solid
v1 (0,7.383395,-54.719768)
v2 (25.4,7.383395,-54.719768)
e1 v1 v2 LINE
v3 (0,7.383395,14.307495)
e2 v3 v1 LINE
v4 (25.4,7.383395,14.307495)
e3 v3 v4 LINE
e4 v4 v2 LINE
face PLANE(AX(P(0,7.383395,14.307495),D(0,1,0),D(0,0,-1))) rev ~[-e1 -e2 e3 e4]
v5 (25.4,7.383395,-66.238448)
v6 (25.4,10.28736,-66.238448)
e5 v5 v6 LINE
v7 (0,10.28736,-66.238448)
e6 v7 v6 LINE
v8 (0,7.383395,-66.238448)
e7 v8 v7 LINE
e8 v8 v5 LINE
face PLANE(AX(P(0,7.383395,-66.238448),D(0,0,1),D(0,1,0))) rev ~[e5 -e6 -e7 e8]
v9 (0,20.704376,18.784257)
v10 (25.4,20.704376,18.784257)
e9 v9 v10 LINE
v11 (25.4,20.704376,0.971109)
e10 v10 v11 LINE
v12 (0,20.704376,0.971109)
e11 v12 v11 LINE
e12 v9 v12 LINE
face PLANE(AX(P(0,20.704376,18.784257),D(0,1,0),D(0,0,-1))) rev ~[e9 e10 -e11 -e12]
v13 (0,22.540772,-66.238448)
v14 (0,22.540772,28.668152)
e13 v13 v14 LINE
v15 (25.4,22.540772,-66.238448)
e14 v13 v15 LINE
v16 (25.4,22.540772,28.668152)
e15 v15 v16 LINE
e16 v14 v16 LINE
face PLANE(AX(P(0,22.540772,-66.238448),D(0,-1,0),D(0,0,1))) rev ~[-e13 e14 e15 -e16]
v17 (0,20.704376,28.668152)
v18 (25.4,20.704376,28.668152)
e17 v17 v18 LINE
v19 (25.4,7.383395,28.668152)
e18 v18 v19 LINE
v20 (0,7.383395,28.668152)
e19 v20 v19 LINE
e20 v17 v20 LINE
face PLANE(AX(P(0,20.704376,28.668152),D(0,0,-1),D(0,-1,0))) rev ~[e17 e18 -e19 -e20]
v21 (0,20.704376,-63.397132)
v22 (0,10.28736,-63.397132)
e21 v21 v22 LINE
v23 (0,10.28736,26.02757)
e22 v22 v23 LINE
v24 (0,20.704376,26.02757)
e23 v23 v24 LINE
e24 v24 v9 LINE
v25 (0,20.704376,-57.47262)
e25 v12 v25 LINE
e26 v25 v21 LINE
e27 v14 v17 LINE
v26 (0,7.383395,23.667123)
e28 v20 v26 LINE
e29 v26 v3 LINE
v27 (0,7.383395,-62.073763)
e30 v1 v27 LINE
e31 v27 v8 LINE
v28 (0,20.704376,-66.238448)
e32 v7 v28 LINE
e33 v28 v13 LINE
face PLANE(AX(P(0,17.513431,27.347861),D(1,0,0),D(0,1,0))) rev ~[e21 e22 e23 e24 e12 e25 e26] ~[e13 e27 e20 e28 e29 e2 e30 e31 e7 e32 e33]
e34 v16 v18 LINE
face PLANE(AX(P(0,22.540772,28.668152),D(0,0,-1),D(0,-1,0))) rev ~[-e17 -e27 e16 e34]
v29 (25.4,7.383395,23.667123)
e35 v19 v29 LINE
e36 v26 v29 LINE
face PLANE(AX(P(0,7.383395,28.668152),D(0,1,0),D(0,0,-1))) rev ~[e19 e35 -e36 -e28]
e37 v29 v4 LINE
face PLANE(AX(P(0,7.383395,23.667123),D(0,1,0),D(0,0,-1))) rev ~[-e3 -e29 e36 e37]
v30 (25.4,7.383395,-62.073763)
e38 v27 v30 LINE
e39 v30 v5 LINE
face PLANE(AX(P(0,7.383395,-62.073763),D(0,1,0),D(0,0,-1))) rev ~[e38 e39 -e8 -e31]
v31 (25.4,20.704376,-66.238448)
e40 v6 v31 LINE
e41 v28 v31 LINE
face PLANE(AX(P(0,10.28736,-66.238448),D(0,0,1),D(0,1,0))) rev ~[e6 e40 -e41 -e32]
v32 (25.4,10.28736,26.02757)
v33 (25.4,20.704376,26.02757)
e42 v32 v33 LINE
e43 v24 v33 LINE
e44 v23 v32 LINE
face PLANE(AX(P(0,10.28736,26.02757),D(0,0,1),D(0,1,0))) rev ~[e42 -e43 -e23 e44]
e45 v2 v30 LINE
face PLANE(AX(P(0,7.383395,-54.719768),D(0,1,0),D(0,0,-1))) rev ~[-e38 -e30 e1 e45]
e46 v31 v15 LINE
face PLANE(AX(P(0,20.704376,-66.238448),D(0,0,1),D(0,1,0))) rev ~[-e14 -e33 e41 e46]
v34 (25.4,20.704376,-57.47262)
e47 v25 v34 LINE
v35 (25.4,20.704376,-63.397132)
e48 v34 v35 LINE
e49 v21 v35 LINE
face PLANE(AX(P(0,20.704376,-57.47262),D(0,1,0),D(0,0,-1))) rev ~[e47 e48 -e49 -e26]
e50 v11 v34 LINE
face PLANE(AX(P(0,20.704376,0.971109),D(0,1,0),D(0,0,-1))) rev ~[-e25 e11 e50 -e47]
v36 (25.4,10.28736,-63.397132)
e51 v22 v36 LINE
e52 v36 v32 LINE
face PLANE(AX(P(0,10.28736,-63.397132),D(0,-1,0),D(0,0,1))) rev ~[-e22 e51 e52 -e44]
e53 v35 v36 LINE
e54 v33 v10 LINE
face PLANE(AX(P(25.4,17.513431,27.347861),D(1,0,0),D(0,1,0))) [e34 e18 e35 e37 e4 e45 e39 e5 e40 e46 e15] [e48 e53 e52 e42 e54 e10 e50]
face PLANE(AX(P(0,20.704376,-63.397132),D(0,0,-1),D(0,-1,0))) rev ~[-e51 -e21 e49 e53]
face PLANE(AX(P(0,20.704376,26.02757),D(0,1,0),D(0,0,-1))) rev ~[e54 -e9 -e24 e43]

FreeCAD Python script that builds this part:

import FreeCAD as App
import Part
import Sketcher

V = App.Vector
Q = App.Units.Quantity


def add_polygon(sketch, points):
    """Adds a closed chain of lines whose ends are joined by coincident constraints."""
    first, n = sketch.GeometryCount, len(points)
    for a, b in zip(points, points[1:] + points[:1]):
        sketch.addGeometry(Part.LineSegment(App.Vector(*a, 0), App.Vector(*b, 0)), False)
    for i in range(n):
        sketch.addConstraint(Sketcher.Constraint("Coincident", first + i, 2, first + (i + 1) % n, 1))

doc = App.newDocument("Part")
params = doc.addObject("Spreadsheet::Sheet", "Params")
for row, (alias, value) in enumerate([
    ("pad1_length", "1 in"),
], start=1):
    params.set(f"A{row}", alias)
    params.set(f"B{row}", "=" + value)
    params.setAlias(f"B{row}", alias)

body = doc.addObject("PartDesign::Body", "Body")

# Sketch on YZ plane
sketch1 = doc.addObject("Sketcher::SketchObject", "Sketch")
body.addObject(sketch1)
sketch1.AttachmentSupport = (doc.YZ_Plane, [""])
sketch1.MapMode = "FlatFace"
add_polygon(sketch1, [(20.7, 28.7), (7.4, 28.7), (7.4, 23.7), (7.4, 14.3), (7.4, -54.7), (7.4, -62.1), (7.4, -66.2), (10.3, -66.2), (20.7, -66.2), (22.5, -66.2), (22.5, 28.7)])  # lines 0-10
add_polygon(sketch1, [(10.3, 26), (20.7, 26), (20.7, 18.8), (20.7, 1), (20.7, -57.5), (20.7, -63.4), (10.3, -63.4)])  # lines 11-17
sketch1.addConstraint([
    Sketcher.Constraint("Horizontal", 0),
    Sketcher.Constraint("Vertical", 1),
    Sketcher.Constraint("Vertical", 2),
    Sketcher.Constraint("Vertical", 3),
    Sketcher.Constraint("Vertical", 4),
    Sketcher.Constraint("Vertical", 5),
    Sketcher.Constraint("Horizontal", 6),
    Sketcher.Constraint("Horizontal", 7),
    Sketcher.Constraint("Horizontal", 8),
    Sketcher.Constraint("Vertical", 9),
    Sketcher.Constraint("Horizontal", 10),
    Sketcher.Constraint("Horizontal", 11),
    Sketcher.Constraint("Vertical", 12),
    Sketcher.Constraint("Vertical", 13),
    Sketcher.Constraint("Vertical", 14),
    Sketcher.Constraint("Vertical", 15),
    Sketcher.Constraint("Horizontal", 16),
    Sketcher.Constraint("Vertical", 17),
    Sketcher.Constraint("Vertical", 7, 2, 10, 2),
    Sketcher.Constraint("Vertical", 10, 2, 11, 2),
    Sketcher.Constraint("Vertical", 6, 2, 16, 2),
    Sketcher.Constraint("DistanceY", 9, 1, 9, 2, 94.9066),
    Sketcher.Constraint("DistanceY", 17, 1, 17, 2, 89.424701),
    Sketcher.Constraint("DistanceY", 5, 2, 2, 2, Q("3.1711001 in")),
    Sketcher.Constraint("DistanceX", 0, 2, 0, 1, 13.32098),
    Sketcher.Constraint("DistanceY", 1, 2, 1, 1, 5.001029),
    Sketcher.Constraint("DistanceY", 14, 2, 14, 1, 58.443729),
    Sketcher.Constraint("DistanceY", 15, 2, 15, 1, 5.924512),
    Sketcher.Constraint("DistanceX", 6, 1, 6, 2, 2.903965),
    Sketcher.Constraint("DistanceX", 8, 1, 8, 2, 1.836397),
    Sketcher.Constraint("DistanceY", 3, 2, 3, 1, 69.027264),
    Sketcher.Constraint("DistanceY", 4, 2, 4, 1, 7.353995),
    Sketcher.Constraint("DistanceY", 12, 2, 12, 1, 7.243313),
    Sketcher.Constraint("DistanceY", 3, 2, -1, 1, 54.719768),
    Sketcher.Constraint("DistanceX", -1, 1, 6, 2, 10.28736),
    Sketcher.Constraint("DistanceY", -1, 1, 11, 2, 26.02757),
])
pad1 = doc.addObject("PartDesign::Pad", "Pad")
body.addObject(pad1)
pad1.Profile = sketch1
pad1.setExpression("Length", "Params.pad1_length")

doc.recompute()
